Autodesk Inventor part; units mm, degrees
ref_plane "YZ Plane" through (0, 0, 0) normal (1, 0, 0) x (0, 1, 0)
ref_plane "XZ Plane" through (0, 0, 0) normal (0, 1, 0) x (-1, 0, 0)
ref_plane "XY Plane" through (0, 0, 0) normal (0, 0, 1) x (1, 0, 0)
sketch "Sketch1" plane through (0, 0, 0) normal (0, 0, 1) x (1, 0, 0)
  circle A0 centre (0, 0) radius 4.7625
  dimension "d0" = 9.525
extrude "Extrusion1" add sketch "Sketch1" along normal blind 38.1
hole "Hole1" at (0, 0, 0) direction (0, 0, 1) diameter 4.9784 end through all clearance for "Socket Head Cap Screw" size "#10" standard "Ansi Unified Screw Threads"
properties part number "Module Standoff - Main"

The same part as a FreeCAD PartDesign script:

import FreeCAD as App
import Part
import Sketcher

V = App.Vector
Q = App.Units.Quantity

doc = App.newDocument("Part")
params = doc.addObject("Spreadsheet::Sheet", "Params")
for row, (alias, value) in enumerate([
    ("sketch1_diameter", "0.375 in"),
    ("pad1_length", "1.5 in"),
    ("sketch2_diameter", "0.196 in"),
    ("hole_diameter", "0.196 in"),
], start=1):
    params.set(f"A{row}", alias)
    params.set(f"B{row}", "=" + value)
    params.setAlias(f"B{row}", alias)

body = doc.addObject("PartDesign::Body", "Body")

# Sketch on XY plane
sketch1 = body.newObject("Sketcher::SketchObject", "Sketch")
sketch1.AttachmentSupport = (doc.getObject("XY_Plane"), [""])
sketch1.MapMode = "FlatFace"
sketch1.addGeometry(Part.Circle(V(0, 0, 0), V(0, 0, 1), 4.7625), False)
sketch1.addConstraint([
    Sketcher.Constraint("Coincident", 0, 3, -1, 1),
    Sketcher.Constraint("Diameter", 0, Q("0.375 in")),
])
sketch1.setExpression("Constraints[1]", "Params.sketch1_diameter")
pad1 = body.newObject("PartDesign::Pad", "Pad")
pad1.Profile = sketch1
pad1.setExpression("Length", "Params.pad1_length")

# Sketch on XY plane
sketch2 = body.newObject("Sketcher::SketchObject", "Sketch001")
sketch2.AttachmentSupport = (doc.getObject("XY_Plane"), [""])
sketch2.MapMode = "FlatFace"
sketch2.addGeometry(Part.Circle(V(0, 0, 0), V(0, 0, 1), 2.4892), False)
sketch2.addConstraint([
    Sketcher.Constraint("Coincident", 0, 3, -1, 1),
    Sketcher.Constraint("Diameter", 0, Q("0.196 in")),
])
sketch2.setExpression("Constraints[1]", "Params.sketch2_diameter")
doc.recompute()
hole = body.newObject("PartDesign::Hole", "Hole")
hole.Profile = sketch2
hole.ThreadType = "None"
hole.setExpression("Diameter", "Params.hole_diameter")
hole.DepthType = "ThroughAll"
hole.Reversed = True

doc.recompute()
